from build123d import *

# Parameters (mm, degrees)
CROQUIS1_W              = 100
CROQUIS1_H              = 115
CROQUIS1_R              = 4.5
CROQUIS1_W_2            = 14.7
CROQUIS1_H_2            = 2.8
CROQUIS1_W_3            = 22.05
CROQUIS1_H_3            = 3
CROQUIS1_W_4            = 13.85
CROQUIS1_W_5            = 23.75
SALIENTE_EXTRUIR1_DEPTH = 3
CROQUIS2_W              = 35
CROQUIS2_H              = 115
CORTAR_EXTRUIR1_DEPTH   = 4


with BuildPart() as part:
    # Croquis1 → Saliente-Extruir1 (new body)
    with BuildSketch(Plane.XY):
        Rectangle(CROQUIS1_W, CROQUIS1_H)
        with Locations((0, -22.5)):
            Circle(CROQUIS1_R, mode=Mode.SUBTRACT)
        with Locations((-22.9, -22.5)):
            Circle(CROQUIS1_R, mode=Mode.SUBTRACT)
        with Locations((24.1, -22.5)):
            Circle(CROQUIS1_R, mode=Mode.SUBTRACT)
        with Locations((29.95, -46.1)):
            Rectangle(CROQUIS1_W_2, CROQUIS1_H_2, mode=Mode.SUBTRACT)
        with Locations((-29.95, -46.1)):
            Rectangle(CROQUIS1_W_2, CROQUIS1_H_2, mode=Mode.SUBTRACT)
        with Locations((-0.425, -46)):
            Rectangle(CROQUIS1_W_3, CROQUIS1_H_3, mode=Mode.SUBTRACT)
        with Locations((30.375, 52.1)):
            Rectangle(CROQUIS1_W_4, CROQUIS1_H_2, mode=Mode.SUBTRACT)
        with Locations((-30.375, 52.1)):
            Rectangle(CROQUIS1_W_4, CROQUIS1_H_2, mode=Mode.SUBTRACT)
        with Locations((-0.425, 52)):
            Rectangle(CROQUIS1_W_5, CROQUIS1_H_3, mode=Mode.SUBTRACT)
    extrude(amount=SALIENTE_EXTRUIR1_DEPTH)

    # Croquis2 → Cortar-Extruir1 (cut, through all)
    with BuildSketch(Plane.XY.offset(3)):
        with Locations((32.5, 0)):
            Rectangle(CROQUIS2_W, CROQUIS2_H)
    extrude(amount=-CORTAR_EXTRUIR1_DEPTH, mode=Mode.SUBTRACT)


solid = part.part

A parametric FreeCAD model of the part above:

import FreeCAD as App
import Part
import Sketcher

V = App.Vector
Q = App.Units.Quantity

doc = App.newDocument("Part")
params = doc.addObject("Spreadsheet::Sheet", "Params")
for row, (alias, value) in enumerate([
    ("sketch1_diameter", "9 mm"),
    ("sketch1_width", "100 mm"),
    ("sketch1_height", "115 mm"),
    ("sketch1_height2", "3 mm"),
    ("sketch1_width2", "14.7 mm"),
    ("pad1_length", "3 mm"),
    ("sketch2_width", "35 mm"),
    ("sketch2_height", "115 mm"),
], start=1):
    params.set(f"A{row}", alias)
    params.set(f"B{row}", "=" + value)
    params.setAlias(f"B{row}", alias)

body = doc.addObject("PartDesign::Body", "Body")

# Sketch on XY plane
sketch1 = body.newObject("Sketcher::SketchObject", "Sketch")
sketch1.AttachmentSupport = (doc.getObject("XY_Plane"), [""])
sketch1.MapMode = "FlatFace"
sketch1.addGeometry(Part.LineSegment(V(-50, 57.5, 0), V(-50, -57.5, 0)), False)
sketch1.addGeometry(Part.LineSegment(V(-50, -57.5, 0), V(50, -57.5, 0)), False)
sketch1.addGeometry(Part.LineSegment(V(50, -57.5, 0), V(50, 57.5, 0)), False)
sketch1.addGeometry(Part.LineSegment(V(50, 57.5, 0), V(-50, 57.5, 0)), False)
sketch1.addGeometry(Part.LineSegment(V(-22.6, -47.5, 0), V(-37.3, -47.5, 0)), False)
sketch1.addGeometry(Part.LineSegment(V(-37.3, -47.5, 0), V(-37.3, -44.7, 0)), False)
sketch1.addGeometry(Part.LineSegment(V(-37.3, -44.7, 0), V(-22.6, -44.7, 0)), False)
sketch1.addGeometry(Part.LineSegment(V(-22.6, -44.7, 0), V(-22.6, -47.5, 0)), False)
sketch1.addGeometry(Part.Circle(V(-22.9, -22.5, 0), V(0, 0, 1), 4.5), False)
sketch1.addGeometry(Part.LineSegment(V(10.6, -47.5, 0), V(-11.4, -47.5, 0)), False)
sketch1.addGeometry(Part.LineSegment(V(-11.4, -47.5, 0), V(-11.4, -44.5, 0)), False)
sketch1.addGeometry(Part.LineSegment(V(-11.4, -44.5, 0), V(10.6, -44.5, 0)), False)
sketch1.addGeometry(Part.LineSegment(V(10.6, -44.5, 0), V(10.6, -47.5, 0)), False)
sketch1.addGeometry(Part.Circle(V(0, -22.5, 0), V(0, 0, 1), 4.5), False)
sketch1.addGeometry(Part.LineSegment(V(37.3, -47.5, 0), V(22.6, -47.5, 0)), False)
sketch1.addGeometry(Part.LineSegment(V(22.6, -47.5, 0), V(22.6, -44.7, 0)), False)
sketch1.addGeometry(Part.LineSegment(V(22.6, -44.7, 0), V(37.3, -44.7, 0)), False)
sketch1.addGeometry(Part.LineSegment(V(37.3, -44.7, 0), V(37.3, -47.5, 0)), False)
sketch1.addGeometry(Part.Circle(V(24.1, -22.5, 0), V(0, 0, 1), 4.5), False)
sketch1.addGeometry(Part.LineSegment(V(-23.4, 50.7, 0), V(-37.3, 50.7, 0)), False)
sketch1.addGeometry(Part.LineSegment(V(-37.3, 50.7, 0), V(-37.3, 53.5, 0)), False)
sketch1.addGeometry(Part.LineSegment(V(-37.3, 53.5, 0), V(-23.4, 53.5, 0)), False)
sketch1.addGeometry(Part.LineSegment(V(-23.4, 53.5, 0), V(-23.4, 50.7, 0)), False)
sketch1.addGeometry(Part.LineSegment(V(11.4, 50.5, 0), V(-12.3, 50.5, 0)), False)
sketch1.addGeometry(Part.LineSegment(V(-12.3, 50.5, 0), V(-12.3, 53.5, 0)), False)
sketch1.addGeometry(Part.LineSegment(V(-12.3, 53.5, 0), V(11.4, 53.5, 0)), False)
sketch1.addGeometry(Part.LineSegment(V(11.4, 53.5, 0), V(11.4, 50.5, 0)), False)
sketch1.addGeometry(Part.LineSegment(V(37.3, 50.7, 0), V(23.4, 50.7, 0)), False)
sketch1.addGeometry(Part.LineSegment(V(23.4, 50.7, 0), V(23.4, 53.5, 0)), False)
sketch1.addGeometry(Part.LineSegment(V(23.4, 53.5, 0), V(37.3, 53.5, 0)), False)
sketch1.addGeometry(Part.LineSegment(V(37.3, 53.5, 0), V(37.3, 50.7, 0)), False)
sketch1.addConstraint(Sketcher.Constraint("Coincident", 0, 2, 1, 1))
sketch1.addConstraint(Sketcher.Constraint("Coincident", 1, 2, 2, 1))
sketch1.addConstraint(Sketcher.Constraint("Coincident", 2, 2, 3, 1))
sketch1.addConstraint(Sketcher.Constraint("Coincident", 3, 2, 0, 1))
sketch1.addConstraint(Sketcher.Constraint("Coincident", 4, 2, 5, 1))
sketch1.addConstraint(Sketcher.Constraint("Coincident", 5, 2, 6, 1))
sketch1.addConstraint(Sketcher.Constraint("Coincident", 6, 2, 7, 1))
sketch1.addConstraint(Sketcher.Constraint("Coincident", 7, 2, 4, 1))
sketch1.addConstraint(Sketcher.Constraint("Coincident", 9, 2, 10, 1))
sketch1.addConstraint(Sketcher.Constraint("Coincident", 10, 2, 11, 1))
sketch1.addConstraint(Sketcher.Constraint("Coincident", 11, 2, 12, 1))
sketch1.addConstraint(Sketcher.Constraint("Coincident", 12, 2, 9, 1))
sketch1.addConstraint(Sketcher.Constraint("Coincident", 14, 2, 15, 1))
sketch1.addConstraint(Sketcher.Constraint("Coincident", 15, 2, 16, 1))
sketch1.addConstraint(Sketcher.Constraint("Coincident", 16, 2, 17, 1))
sketch1.addConstraint(Sketcher.Constraint("Coincident", 17, 2, 14, 1))
sketch1.addConstraint(Sketcher.Constraint("Coincident", 19, 2, 20, 1))
sketch1.addConstraint(Sketcher.Constraint("Coincident", 20, 2, 21, 1))
sketch1.addConstraint(Sketcher.Constraint("Coincident", 21, 2, 22, 1))
sketch1.addConstraint(Sketcher.Constraint("Coincident", 22, 2, 19, 1))
sketch1.addConstraint(Sketcher.Constraint("Coincident", 23, 2, 24, 1))
sketch1.addConstraint(Sketcher.Constraint("Coincident", 24, 2, 25, 1))
sketch1.addConstraint(Sketcher.Constraint("Coincident", 25, 2, 26, 1))
sketch1.addConstraint(Sketcher.Constraint("Coincident", 26, 2, 23, 1))
sketch1.addConstraint(Sketcher.Constraint("Coincident", 27, 2, 28, 1))
sketch1.addConstraint(Sketcher.Constraint("Coincident", 28, 2, 29, 1))
sketch1.addConstraint(Sketcher.Constraint("Coincident", 29, 2, 30, 1))
sketch1.addConstraint(Sketcher.Constraint("Coincident", 30, 2, 27, 1))
sketch1.addConstraint(Sketcher.Constraint("Vertical", 0))
sketch1.addConstraint(Sketcher.Constraint("Horizontal", 1))
sketch1.addConstraint(Sketcher.Constraint("Vertical", 2))
sketch1.addConstraint(Sketcher.Constraint("Horizontal", 3))
sketch1.addConstraint(Sketcher.Constraint("Horizontal", 4))
sketch1.addConstraint(Sketcher.Constraint("Vertical", 5))
sketch1.addConstraint(Sketcher.Constraint("Horizontal", 6))
sketch1.addConstraint(Sketcher.Constraint("Vertical", 7))
sketch1.addConstraint(Sketcher.Constraint("Horizontal", 9))
sketch1.addConstraint(Sketcher.Constraint("Vertical", 10))
sketch1.addConstraint(Sketcher.Constraint("Horizontal", 11))
sketch1.addConstraint(Sketcher.Constraint("Vertical", 12))
sketch1.addConstraint(Sketcher.Constraint("Horizontal", 14))
sketch1.addConstraint(Sketcher.Constraint("Vertical", 15))
sketch1.addConstraint(Sketcher.Constraint("Horizontal", 16))
sketch1.addConstraint(Sketcher.Constraint("Vertical", 17))
sketch1.addConstraint(Sketcher.Constraint("Horizontal", 19))
sketch1.addConstraint(Sketcher.Constraint("Vertical", 20))
sketch1.addConstraint(Sketcher.Constraint("Horizontal", 21))
sketch1.addConstraint(Sketcher.Constraint("Vertical", 22))
sketch1.addConstraint(Sketcher.Constraint("Horizontal", 23))
sketch1.addConstraint(Sketcher.Constraint("Vertical", 24))
sketch1.addConstraint(Sketcher.Constraint("Horizontal", 25))
sketch1.addConstraint(Sketcher.Constraint("Vertical", 26))
sketch1.addConstraint(Sketcher.Constraint("Horizontal", 27))
sketch1.addConstraint(Sketcher.Constraint("Vertical", 28))
sketch1.addConstraint(Sketcher.Constraint("Horizontal", 29))
sketch1.addConstraint(Sketcher.Constraint("Vertical", 30))
sketch1.addConstraint(Sketcher.Constraint("Equal", 8, 13))
sketch1.addConstraint(Sketcher.Constraint("Equal", 13, 18))
sketch1.addConstraint(Sketcher.Constraint("Symmetric", 0, 2, 2, 2, -1, 1))
sketch1.addConstraint(Sketcher.Constraint("Symmetric", 7, 2, 14, 2, -2))
sketch1.addConstraint(Sketcher.Constraint("Symmetric", 5, 2, 16, 2, -2))
sketch1.addConstraint(Sketcher.Constraint("Symmetric", 22, 2, 27, 2, -2))
sketch1.addConstraint(Sketcher.Constraint("Symmetric", 20, 2, 29, 2, -2))
sketch1.addConstraint(Sketcher.Constraint("PointOnObject", 13, 3, -2))
sketch1.addConstraint(Sketcher.Constraint("Horizontal", 8, 3, 13, 3))
sketch1.addConstraint(Sketcher.Constraint("Horizontal", 13, 3, 18, 3))
sketch1.addConstraint(Sketcher.Constraint("Horizontal", 7, 2, 9, 2))
sketch1.addConstraint(Sketcher.Constraint("Horizontal", 21, 2, 24, 2))
sketch1.addConstraint(Sketcher.Constraint("Vertical", 5, 2, 19, 2))
sketch1.addConstraint(Sketcher.Constraint("Equal", 17, 20))
sketch1.addConstraint(Sketcher.Constraint("Equal", 12, 24))
sketch1.addConstraint(Sketcher.Constraint("Diameter", 8, Q("9 mm")))
sketch1.addConstraint(Sketcher.Constraint("DistanceX", 1, 1, 1, 2, Q("100 mm")))
sketch1.addConstraint(Sketcher.Constraint("DistanceY", 0, 2, 0, 1, Q("115 mm")))
sketch1.addConstraint(Sketcher.Constraint("DistanceY", 10, 1, 10, 2, Q("3 mm")))
sketch1.addConstraint(Sketcher.Constraint("DistanceX", 4, 2, 4, 1, Q("14.7 mm")))
sketch1.addConstraint(Sketcher.Constraint("DistanceY", 5, 1, 5, 2, Q("2.8 mm")))
sketch1.addConstraint(Sketcher.Constraint("DistanceX", 8, 3, 18, 3, Q("47 mm")))
sketch1.addConstraint(Sketcher.Constraint("DistanceY", 0, 2, 8, 3, Q("35 mm")))
sketch1.addConstraint(Sketcher.Constraint("DistanceY", 0, 2, 4, 2, Q("10 mm")))
sketch1.addConstraint(Sketcher.Constraint("DistanceX", 12, 2, 14, 2, Q("12 mm")))
sketch1.addConstraint(Sketcher.Constraint("DistanceY", 20, 2, 3, 2, Q("4 mm")))
sketch1.addConstraint(Sketcher.Constraint("DistanceX", 19, 2, 23, 2, Q("25 mm")))
sketch1.addConstraint(Sketcher.Constraint("DistanceX", 26, 2, 27, 2, Q("12 mm")))
sketch1.addConstraint(Sketcher.Constraint("DistanceX", 9, 2, 9, 1, Q("22.05 mm")))
sketch1.addConstraint(Sketcher.Constraint("DistanceX", 19, 2, 19, 1, Q("13.85 mm")))
sketch1.addConstraint(Sketcher.Constraint("DistanceX", 23, 2, 23, 1, Q("23.75 mm")))
sketch1.addConstraint(Sketcher.Constraint("DistanceX", 8, 3, -1, 1, Q("22.9 mm")))
sketch1.setExpression("Constraints[71]", "Params.sketch1_diameter")
sketch1.setExpression("Constraints[72]", "Params.sketch1_width")
sketch1.setExpression("Constraints[73]", "Params.sketch1_height")
sketch1.setExpression("Constraints[74]", "Params.sketch1_height2")
sketch1.setExpression("Constraints[75]", "Params.sketch1_width2")
pad1 = body.newObject("PartDesign::Pad", "Pad")
pad1.Profile = sketch1
pad1.setExpression("Length", "Params.pad1_length")

# Sketch on XY plane
sketch2 = body.newObject("Sketcher::SketchObject", "Sketch001")
sketch2.AttachmentSupport = (doc.getObject("XY_Plane"), [""])
sketch2.MapMode = "FlatFace"
sketch2.AttachmentOffset = App.Placement(V(0, 0, 3), App.Rotation())
sketch2.addGeometry(Part.LineSegment(V(15, 58, 0), V(15, -58, 0)), False)
sketch2.addGeometry(Part.LineSegment(V(15, -58, 0), V(50, -58, 0)), False)
sketch2.addGeometry(Part.LineSegment(V(50, -58, 0), V(50, 58, 0)), False)
sketch2.addGeometry(Part.LineSegment(V(50, 58, 0), V(15, 58, 0)), False)
sketch2.addConstraint(Sketcher.Constraint("Coincident", 0, 2, 1, 1))
sketch2.addConstraint(Sketcher.Constraint("Coincident", 1, 2, 2, 1))
sketch2.addConstraint(Sketcher.Constraint("Coincident", 2, 2, 3, 1))
sketch2.addConstraint(Sketcher.Constraint("Coincident", 3, 2, 0, 1))
sketch2.addConstraint(Sketcher.Constraint("Vertical", 0))
sketch2.addConstraint(Sketcher.Constraint("Horizontal", 1))
sketch2.addConstraint(Sketcher.Constraint("Vertical", 2))
sketch2.addConstraint(Sketcher.Constraint("Horizontal", 3))
sketch2.addConstraint(Sketcher.Constraint("DistanceX", 1, 1, 1, 2, Q("35 mm")))
sketch2.addConstraint(Sketcher.Constraint("DistanceY", 0, 2, 0, 1, Q("115 mm")))
sketch2.addConstraint(Sketcher.Constraint("DistanceX", -1, 1, 0, 2, Q("15 mm")))
sketch2.addConstraint(Sketcher.Constraint("DistanceY", 0, 2, -1, 1, Q("57.5 mm")))
sketch2.setExpression("Constraints[8]", "Params.sketch2_width")
sketch2.setExpression("Constraints[9]", "Params.sketch2_height")
pocket1 = body.newObject("PartDesign::Pocket", "Pocket")
pocket1.Profile = sketch2
pocket1.Type = "ThroughAll"

doc.recompute()
